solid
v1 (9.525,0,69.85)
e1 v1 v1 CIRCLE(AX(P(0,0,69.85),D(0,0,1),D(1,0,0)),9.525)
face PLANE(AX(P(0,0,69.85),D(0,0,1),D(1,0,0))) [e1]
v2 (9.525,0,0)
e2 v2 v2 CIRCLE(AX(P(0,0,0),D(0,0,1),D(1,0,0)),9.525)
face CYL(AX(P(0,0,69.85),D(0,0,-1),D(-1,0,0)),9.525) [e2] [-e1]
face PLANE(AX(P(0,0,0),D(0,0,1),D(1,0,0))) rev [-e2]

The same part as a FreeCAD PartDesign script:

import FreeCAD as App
import Part
import Sketcher
from FreeCAD import Vector
Q = App.Units.Quantity

doc = App.newDocument("Part")
body = doc.addObject("PartDesign::Body", "Body")

# Sketch on XY plane
sketch1 = body.newObject("Sketcher::SketchObject", "Sketch")
sketch1.AttachmentSupport = (doc.getObject("XY_Plane"), [""])
sketch1.MapMode = "FlatFace"
sketch1.addGeometry(Part.Circle(Vector(0, 0, 0), Vector(0, 0, 1), 10), False)
sketch1.addConstraint(Sketcher.Constraint("Coincident", 0, 3, -1, 1))
sketch1.addConstraint(Sketcher.Constraint("Diameter", 0, Q("0.75 in")))
pad1 = body.newObject("PartDesign::Pad", "Pad")
pad1.Profile = sketch1
pad1.Length = Q("2.75 in")

doc.recompute()
